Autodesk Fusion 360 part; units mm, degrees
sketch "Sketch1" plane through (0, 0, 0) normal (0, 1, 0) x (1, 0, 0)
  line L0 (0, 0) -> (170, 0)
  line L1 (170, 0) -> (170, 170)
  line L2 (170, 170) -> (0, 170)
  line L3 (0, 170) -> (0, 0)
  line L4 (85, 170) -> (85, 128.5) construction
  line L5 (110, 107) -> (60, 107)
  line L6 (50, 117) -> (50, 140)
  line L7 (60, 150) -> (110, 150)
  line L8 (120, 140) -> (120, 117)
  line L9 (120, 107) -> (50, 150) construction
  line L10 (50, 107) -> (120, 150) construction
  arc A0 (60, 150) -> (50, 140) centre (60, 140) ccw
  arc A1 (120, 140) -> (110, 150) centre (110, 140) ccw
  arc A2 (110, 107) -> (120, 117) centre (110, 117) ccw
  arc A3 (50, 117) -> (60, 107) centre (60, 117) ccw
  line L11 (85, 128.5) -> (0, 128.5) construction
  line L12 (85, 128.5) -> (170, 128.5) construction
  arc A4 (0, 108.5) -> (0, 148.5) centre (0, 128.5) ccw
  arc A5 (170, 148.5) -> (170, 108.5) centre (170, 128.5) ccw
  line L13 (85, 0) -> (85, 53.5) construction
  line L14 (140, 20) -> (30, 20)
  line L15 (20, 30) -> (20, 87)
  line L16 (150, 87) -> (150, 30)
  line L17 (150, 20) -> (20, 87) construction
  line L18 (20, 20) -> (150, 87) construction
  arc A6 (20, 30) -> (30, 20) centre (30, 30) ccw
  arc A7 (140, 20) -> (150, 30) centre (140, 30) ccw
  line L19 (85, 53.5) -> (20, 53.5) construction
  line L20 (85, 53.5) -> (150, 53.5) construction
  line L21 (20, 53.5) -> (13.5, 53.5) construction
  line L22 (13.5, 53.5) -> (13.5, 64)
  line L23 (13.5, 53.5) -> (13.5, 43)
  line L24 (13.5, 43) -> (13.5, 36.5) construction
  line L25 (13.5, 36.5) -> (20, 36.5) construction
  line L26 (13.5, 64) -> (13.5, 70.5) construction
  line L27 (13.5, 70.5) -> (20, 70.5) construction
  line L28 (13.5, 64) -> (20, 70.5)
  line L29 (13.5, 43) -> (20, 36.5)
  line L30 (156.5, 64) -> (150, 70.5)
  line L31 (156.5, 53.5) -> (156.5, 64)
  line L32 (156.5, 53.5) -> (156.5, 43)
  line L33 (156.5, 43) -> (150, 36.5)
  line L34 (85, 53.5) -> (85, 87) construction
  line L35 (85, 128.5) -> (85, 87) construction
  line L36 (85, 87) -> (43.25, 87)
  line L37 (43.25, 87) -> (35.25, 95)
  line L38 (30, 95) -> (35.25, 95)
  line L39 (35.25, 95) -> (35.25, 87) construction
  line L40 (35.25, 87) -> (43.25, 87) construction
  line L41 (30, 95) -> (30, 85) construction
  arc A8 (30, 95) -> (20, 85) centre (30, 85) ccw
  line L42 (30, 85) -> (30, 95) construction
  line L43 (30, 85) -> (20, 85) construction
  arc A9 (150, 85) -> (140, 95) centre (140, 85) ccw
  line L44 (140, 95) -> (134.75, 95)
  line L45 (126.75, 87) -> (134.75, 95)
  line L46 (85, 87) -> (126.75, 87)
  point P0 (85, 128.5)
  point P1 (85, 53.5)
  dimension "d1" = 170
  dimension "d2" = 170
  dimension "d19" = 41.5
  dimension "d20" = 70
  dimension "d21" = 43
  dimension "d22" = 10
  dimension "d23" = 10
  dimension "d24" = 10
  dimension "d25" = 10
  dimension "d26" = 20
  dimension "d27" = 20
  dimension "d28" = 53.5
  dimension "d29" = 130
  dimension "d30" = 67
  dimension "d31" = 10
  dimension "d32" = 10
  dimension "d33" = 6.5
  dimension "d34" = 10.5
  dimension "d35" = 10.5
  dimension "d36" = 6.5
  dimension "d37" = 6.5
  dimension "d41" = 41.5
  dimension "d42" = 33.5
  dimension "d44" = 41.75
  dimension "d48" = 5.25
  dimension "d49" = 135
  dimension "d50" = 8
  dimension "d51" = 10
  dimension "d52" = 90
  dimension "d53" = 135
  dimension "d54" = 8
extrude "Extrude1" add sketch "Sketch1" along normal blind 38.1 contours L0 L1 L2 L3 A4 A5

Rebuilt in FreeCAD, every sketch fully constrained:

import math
import FreeCAD as App
import Part
import Sketcher
from FreeCAD import Vector
Q = App.Units.Quantity

doc = App.newDocument("Part")
body = doc.addObject("PartDesign::Body", "Body")

sketch1 = doc.addObject("Sketcher::SketchObject", "Sketch")
body.addObject(sketch1)
sketch1.AttachmentSupport = (doc.XZ_Plane, [""])
sketch1.MapMode = "FlatFace"
sketch1.addGeometry(Part.LineSegment(Vector(0, -108, 0), Vector(0, 0, 0)), False)
sketch1.addGeometry(Part.LineSegment(Vector(0, 0, 0), Vector(170, 0, 0)), False)
sketch1.addGeometry(Part.LineSegment(Vector(170, 0, 0), Vector(170, -108, 0)), False)
sketch1.addGeometry(Part.ArcOfCircle(Part.Circle(Vector(170, -128, 0), Vector(0, 0, 1), 20), math.radians(90), math.radians(270)), False)
sketch1.addGeometry(Part.LineSegment(Vector(170, -148, 0), Vector(170, -170, 0)), False)
sketch1.addGeometry(Part.LineSegment(Vector(170, -170, 0), Vector(0, -170, 0)), False)
sketch1.addGeometry(Part.LineSegment(Vector(0, -170, 0), Vector(0, -148, 0)), False)
sketch1.addGeometry(Part.ArcOfCircle(Part.Circle(Vector(0, -128, 0), Vector(0, 0, 1), 20), math.radians(-90), math.radians(90)), False)
sketch1.addGeometry(Part.ArcOfCircle(Part.Circle(Vector(140, -30, 0), Vector(0, 0, 1), 10), math.radians(0), math.radians(90)), False)
sketch1.addGeometry(Part.LineSegment(Vector(140, -20, 0), Vector(30, -20, 0)), False)
sketch1.addGeometry(Part.ArcOfCircle(Part.Circle(Vector(30, -30, 0), Vector(0, 0, 1), 10), math.radians(90), math.radians(180)), False)
sketch1.addGeometry(Part.LineSegment(Vector(20, -30, 0), Vector(20, -36, 0)), False)
sketch1.addGeometry(Part.LineSegment(Vector(20, -36, 0), Vector(14, -43, 0)), False)
sketch1.addGeometry(Part.LineSegment(Vector(14, -43, 0), Vector(14, -64, 0)), False)
sketch1.addGeometry(Part.LineSegment(Vector(14, -64, 0), Vector(20, -70, 0)), False)
sketch1.addGeometry(Part.LineSegment(Vector(20, -70, 0), Vector(20, -85, 0)), False)
sketch1.addGeometry(Part.ArcOfCircle(Part.Circle(Vector(30, -85, 0), Vector(0, 0, 1), 10), math.radians(180), math.radians(270)), False)
sketch1.addGeometry(Part.LineSegment(Vector(30, -95, 0), Vector(35, -95, 0)), False)
sketch1.addGeometry(Part.LineSegment(Vector(35, -95, 0), Vector(43, -87, 0)), False)
sketch1.addGeometry(Part.LineSegment(Vector(43, -87, 0), Vector(127, -87, 0)), False)
sketch1.addGeometry(Part.LineSegment(Vector(127, -87, 0), Vector(135, -95, 0)), False)
sketch1.addGeometry(Part.LineSegment(Vector(135, -95, 0), Vector(140, -95, 0)), False)
sketch1.addGeometry(Part.ArcOfCircle(Part.Circle(Vector(140, -85, 0), Vector(0, 0, 1), 10), math.radians(-90), math.radians(0)), False)
sketch1.addGeometry(Part.LineSegment(Vector(150, -85, 0), Vector(150, -70, 0)), False)
sketch1.addGeometry(Part.LineSegment(Vector(150, -70, 0), Vector(156, -64, 0)), False)
sketch1.addGeometry(Part.LineSegment(Vector(156, -64, 0), Vector(156, -43, 0)), False)
sketch1.addGeometry(Part.LineSegment(Vector(156, -43, 0), Vector(150, -36, 0)), False)
sketch1.addGeometry(Part.LineSegment(Vector(150, -36, 0), Vector(150, -30, 0)), False)
sketch1.addGeometry(Part.ArcOfCircle(Part.Circle(Vector(110, -117, 0), Vector(0, 0, 1), 10), math.radians(0), math.radians(90)), False)
sketch1.addGeometry(Part.LineSegment(Vector(110, -107, 0), Vector(60, -107, 0)), False)
sketch1.addGeometry(Part.ArcOfCircle(Part.Circle(Vector(60, -117, 0), Vector(0, 0, 1), 10), math.radians(90), math.radians(180)), False)
sketch1.addGeometry(Part.LineSegment(Vector(50, -117, 0), Vector(50, -140, 0)), False)
sketch1.addGeometry(Part.ArcOfCircle(Part.Circle(Vector(60, -140, 0), Vector(0, 0, 1), 10), math.radians(180), math.radians(270)), False)
sketch1.addGeometry(Part.LineSegment(Vector(60, -150, 0), Vector(110, -150, 0)), False)
sketch1.addGeometry(Part.ArcOfCircle(Part.Circle(Vector(110, -140, 0), Vector(0, 0, 1), 10), math.radians(-90), math.radians(0)), False)
sketch1.addGeometry(Part.LineSegment(Vector(120, -140, 0), Vector(120, -117, 0)), False)
sketch1.addConstraint(Sketcher.Constraint("Coincident", 0, 2, 1, 1))
sketch1.addConstraint(Sketcher.Constraint("Coincident", 1, 2, 2, 1))
sketch1.addConstraint(Sketcher.Constraint("Coincident", 2, 2, 3, 1))
sketch1.addConstraint(Sketcher.Constraint("Coincident", 3, 2, 4, 1))
sketch1.addConstraint(Sketcher.Constraint("Coincident", 4, 2, 5, 1))
sketch1.addConstraint(Sketcher.Constraint("Coincident", 5, 2, 6, 1))
sketch1.addConstraint(Sketcher.Constraint("Coincident", 6, 2, 7, 1))
sketch1.addConstraint(Sketcher.Constraint("Coincident", 7, 2, 0, 1))
sketch1.addConstraint(Sketcher.Constraint("Tangent", 8, 2, 9, 1))
sketch1.addConstraint(Sketcher.Constraint("Tangent", 9, 2, 10, 1))
sketch1.addConstraint(Sketcher.Constraint("Tangent", 10, 2, 11, 1))
sketch1.addConstraint(Sketcher.Constraint("Coincident", 11, 2, 12, 1))
sketch1.addConstraint(Sketcher.Constraint("Coincident", 12, 2, 13, 1))
sketch1.addConstraint(Sketcher.Constraint("Coincident", 13, 2, 14, 1))
sketch1.addConstraint(Sketcher.Constraint("Coincident", 14, 2, 15, 1))
sketch1.addConstraint(Sketcher.Constraint("Tangent", 15, 2, 16, 1))
sketch1.addConstraint(Sketcher.Constraint("Tangent", 16, 2, 17, 1))
sketch1.addConstraint(Sketcher.Constraint("Coincident", 17, 2, 18, 1))
sketch1.addConstraint(Sketcher.Constraint("Coincident", 18, 2, 19, 1))
sketch1.addConstraint(Sketcher.Constraint("Coincident", 19, 2, 20, 1))
sketch1.addConstraint(Sketcher.Constraint("Coincident", 20, 2, 21, 1))
sketch1.addConstraint(Sketcher.Constraint("Tangent", 21, 2, 22, 1))
sketch1.addConstraint(Sketcher.Constraint("Tangent", 22, 2, 23, 1))
sketch1.addConstraint(Sketcher.Constraint("Coincident", 23, 2, 24, 1))
sketch1.addConstraint(Sketcher.Constraint("Coincident", 24, 2, 25, 1))
sketch1.addConstraint(Sketcher.Constraint("Coincident", 25, 2, 26, 1))
sketch1.addConstraint(Sketcher.Constraint("Coincident", 26, 2, 27, 1))
sketch1.addConstraint(Sketcher.Constraint("Tangent", 27, 2, 8, 1))
sketch1.addConstraint(Sketcher.Constraint("Tangent", 28, 2, 29, 1))
sketch1.addConstraint(Sketcher.Constraint("Tangent", 29, 2, 30, 1))
sketch1.addConstraint(Sketcher.Constraint("Tangent", 30, 2, 31, 1))
sketch1.addConstraint(Sketcher.Constraint("Tangent", 31, 2, 32, 1))
sketch1.addConstraint(Sketcher.Constraint("Tangent", 32, 2, 33, 1))
sketch1.addConstraint(Sketcher.Constraint("Tangent", 33, 2, 34, 1))
sketch1.addConstraint(Sketcher.Constraint("Tangent", 34, 2, 35, 1))
sketch1.addConstraint(Sketcher.Constraint("Tangent", 35, 2, 28, 1))
sketch1.addConstraint(Sketcher.Constraint("Vertical", 0))
sketch1.addConstraint(Sketcher.Constraint("Horizontal", 1))
sketch1.addConstraint(Sketcher.Constraint("Vertical", 2))
sketch1.addConstraint(Sketcher.Constraint("Vertical", 4))
sketch1.addConstraint(Sketcher.Constraint("Horizontal", 5))
sketch1.addConstraint(Sketcher.Constraint("Vertical", 6))
sketch1.addConstraint(Sketcher.Constraint("Horizontal", 9))
sketch1.addConstraint(Sketcher.Constraint("Vertical", 11))
sketch1.addConstraint(Sketcher.Constraint("Vertical", 13))
sketch1.addConstraint(Sketcher.Constraint("Vertical", 15))
sketch1.addConstraint(Sketcher.Constraint("Horizontal", 17))
sketch1.addConstraint(Sketcher.Constraint("Horizontal", 19))
sketch1.addConstraint(Sketcher.Constraint("Horizontal", 21))
sketch1.addConstraint(Sketcher.Constraint("Vertical", 23))
sketch1.addConstraint(Sketcher.Constraint("Vertical", 25))
sketch1.addConstraint(Sketcher.Constraint("Vertical", 27))
sketch1.addConstraint(Sketcher.Constraint("Horizontal", 29))
sketch1.addConstraint(Sketcher.Constraint("Vertical", 31))
sketch1.addConstraint(Sketcher.Constraint("Horizontal", 33))
sketch1.addConstraint(Sketcher.Constraint("Vertical", 35))
sketch1.addConstraint(Sketcher.Constraint("Coincident", 0, 2, -1, 1))
sketch1.addConstraint(Sketcher.Constraint("Equal", 3, 7))
sketch1.addConstraint(Sketcher.Constraint("Equal", 8, 10))
sketch1.addConstraint(Sketcher.Constraint("Equal", 10, 16))
sketch1.addConstraint(Sketcher.Constraint("Equal", 16, 22))
sketch1.addConstraint(Sketcher.Constraint("Equal", 22, 28))
sketch1.addConstraint(Sketcher.Constraint("Equal", 28, 30))
sketch1.addConstraint(Sketcher.Constraint("Equal", 30, 32))
sketch1.addConstraint(Sketcher.Constraint("Equal", 32, 34))
sketch1.addConstraint(Sketcher.Constraint("PointOnObject", 7, 3, -2))
sketch1.addConstraint(Sketcher.Constraint("PointOnObject", 5, 2, -2))
sketch1.addConstraint(Sketcher.Constraint("Perpendicular", 12, 14))
sketch1.addConstraint(Sketcher.Constraint("Perpendicular", 14, 18))
sketch1.addConstraint(Sketcher.Constraint("Perpendicular", 18, 20))
sketch1.addConstraint(Sketcher.Constraint("Perpendicular", 20, 24))
sketch1.addConstraint(Sketcher.Constraint("Perpendicular", 24, 26))
sketch1.addConstraint(Sketcher.Constraint("Horizontal", 3, 3, 7, 3))
sketch1.addConstraint(Sketcher.Constraint("Horizontal", 16, 3, 22, 3))
sketch1.addConstraint(Sketcher.Constraint("Horizontal", 14, 2, 23, 2))
sketch1.addConstraint(Sketcher.Constraint("Horizontal", 13, 2, 24, 2))
sketch1.addConstraint(Sketcher.Constraint("Horizontal", 12, 2, 25, 2))
sketch1.addConstraint(Sketcher.Constraint("Horizontal", 11, 2, 26, 2))
sketch1.addConstraint(Sketcher.Constraint("Vertical", 10, 3, 16, 3))
sketch1.addConstraint(Sketcher.Constraint("Vertical", 8, 3, 22, 3))
sketch1.addConstraint(Sketcher.Constraint("Vertical", 3, 3, 1, 2))
sketch1.addConstraint(Sketcher.Constraint("Vertical", 2, 2, 3, 2))
sketch1.addConstraint(Sketcher.Constraint("Equal", 17, 21))
sketch1.addConstraint(Sketcher.Constraint("Radius", 3, Q("20 mm")))
sketch1.addConstraint(Sketcher.Constraint("Radius", 8, Q("10 mm")))
sketch1.addConstraint(Sketcher.Constraint("DistanceX", 1, 1, 1, 2, Q("170 mm")))
sketch1.addConstraint(Sketcher.Constraint("DistanceY", 11, 2, 11, 1, Q("6.5 mm")))
sketch1.addConstraint(Sketcher.Constraint("DistanceY", 4, 2, -1, 1, Q("170 mm")))
sketch1.addConstraint(Sketcher.Constraint("DistanceY", 8, 2, -1, 1, Q("20 mm")))
sketch1.addConstraint(Sketcher.Constraint("DistanceX", -1, 1, 10, 2, Q("20 mm")))
sketch1.addConstraint(Sketcher.Constraint("DistanceY", 12, 2, -1, 1, Q("43 mm")))
sketch1.addConstraint(Sketcher.Constraint("DistanceX", 17, 2, 18, 2, Q("8 mm")))
sketch1.addConstraint(Sketcher.Constraint("DistanceX", 22, 2, 2, 2, Q("20 mm")))
sketch1.addConstraint(Sketcher.Constraint("DistanceY", 28, 2, 19, 2, Q("20 mm")))
sketch1.addConstraint(Sketcher.Constraint("DistanceX", 16, 2, 30, 2, Q("20 mm")))
sketch1.addConstraint(Sketcher.Constraint("DistanceY", 32, 2, 29, 2, Q("43 mm")))
sketch1.addConstraint(Sketcher.Constraint("DistanceX", 17, 1, 17, 2, Q("5.25 mm")))
sketch1.addConstraint(Sketcher.Constraint("DistanceY", 4, 2, 3, 3, Q("41.5 mm")))
sketch1.addConstraint(Sketcher.Constraint("DistanceY", 3, 3, 20, 2, Q("33.5 mm")))
sketch1.addConstraint(Sketcher.Constraint("DistanceX", 29, 2, 29, 1, Q("50 mm")))
sketch1.addConstraint(Sketcher.Constraint("DistanceY", 13, 2, 13, 1, Q("21 mm")))
pad1 = doc.addObject("PartDesign::Pad", "Pad")
body.addObject(pad1)
pad1.Profile = sketch1
pad1.Length = 38.1
pad1.Reversed = True

doc.recompute()
